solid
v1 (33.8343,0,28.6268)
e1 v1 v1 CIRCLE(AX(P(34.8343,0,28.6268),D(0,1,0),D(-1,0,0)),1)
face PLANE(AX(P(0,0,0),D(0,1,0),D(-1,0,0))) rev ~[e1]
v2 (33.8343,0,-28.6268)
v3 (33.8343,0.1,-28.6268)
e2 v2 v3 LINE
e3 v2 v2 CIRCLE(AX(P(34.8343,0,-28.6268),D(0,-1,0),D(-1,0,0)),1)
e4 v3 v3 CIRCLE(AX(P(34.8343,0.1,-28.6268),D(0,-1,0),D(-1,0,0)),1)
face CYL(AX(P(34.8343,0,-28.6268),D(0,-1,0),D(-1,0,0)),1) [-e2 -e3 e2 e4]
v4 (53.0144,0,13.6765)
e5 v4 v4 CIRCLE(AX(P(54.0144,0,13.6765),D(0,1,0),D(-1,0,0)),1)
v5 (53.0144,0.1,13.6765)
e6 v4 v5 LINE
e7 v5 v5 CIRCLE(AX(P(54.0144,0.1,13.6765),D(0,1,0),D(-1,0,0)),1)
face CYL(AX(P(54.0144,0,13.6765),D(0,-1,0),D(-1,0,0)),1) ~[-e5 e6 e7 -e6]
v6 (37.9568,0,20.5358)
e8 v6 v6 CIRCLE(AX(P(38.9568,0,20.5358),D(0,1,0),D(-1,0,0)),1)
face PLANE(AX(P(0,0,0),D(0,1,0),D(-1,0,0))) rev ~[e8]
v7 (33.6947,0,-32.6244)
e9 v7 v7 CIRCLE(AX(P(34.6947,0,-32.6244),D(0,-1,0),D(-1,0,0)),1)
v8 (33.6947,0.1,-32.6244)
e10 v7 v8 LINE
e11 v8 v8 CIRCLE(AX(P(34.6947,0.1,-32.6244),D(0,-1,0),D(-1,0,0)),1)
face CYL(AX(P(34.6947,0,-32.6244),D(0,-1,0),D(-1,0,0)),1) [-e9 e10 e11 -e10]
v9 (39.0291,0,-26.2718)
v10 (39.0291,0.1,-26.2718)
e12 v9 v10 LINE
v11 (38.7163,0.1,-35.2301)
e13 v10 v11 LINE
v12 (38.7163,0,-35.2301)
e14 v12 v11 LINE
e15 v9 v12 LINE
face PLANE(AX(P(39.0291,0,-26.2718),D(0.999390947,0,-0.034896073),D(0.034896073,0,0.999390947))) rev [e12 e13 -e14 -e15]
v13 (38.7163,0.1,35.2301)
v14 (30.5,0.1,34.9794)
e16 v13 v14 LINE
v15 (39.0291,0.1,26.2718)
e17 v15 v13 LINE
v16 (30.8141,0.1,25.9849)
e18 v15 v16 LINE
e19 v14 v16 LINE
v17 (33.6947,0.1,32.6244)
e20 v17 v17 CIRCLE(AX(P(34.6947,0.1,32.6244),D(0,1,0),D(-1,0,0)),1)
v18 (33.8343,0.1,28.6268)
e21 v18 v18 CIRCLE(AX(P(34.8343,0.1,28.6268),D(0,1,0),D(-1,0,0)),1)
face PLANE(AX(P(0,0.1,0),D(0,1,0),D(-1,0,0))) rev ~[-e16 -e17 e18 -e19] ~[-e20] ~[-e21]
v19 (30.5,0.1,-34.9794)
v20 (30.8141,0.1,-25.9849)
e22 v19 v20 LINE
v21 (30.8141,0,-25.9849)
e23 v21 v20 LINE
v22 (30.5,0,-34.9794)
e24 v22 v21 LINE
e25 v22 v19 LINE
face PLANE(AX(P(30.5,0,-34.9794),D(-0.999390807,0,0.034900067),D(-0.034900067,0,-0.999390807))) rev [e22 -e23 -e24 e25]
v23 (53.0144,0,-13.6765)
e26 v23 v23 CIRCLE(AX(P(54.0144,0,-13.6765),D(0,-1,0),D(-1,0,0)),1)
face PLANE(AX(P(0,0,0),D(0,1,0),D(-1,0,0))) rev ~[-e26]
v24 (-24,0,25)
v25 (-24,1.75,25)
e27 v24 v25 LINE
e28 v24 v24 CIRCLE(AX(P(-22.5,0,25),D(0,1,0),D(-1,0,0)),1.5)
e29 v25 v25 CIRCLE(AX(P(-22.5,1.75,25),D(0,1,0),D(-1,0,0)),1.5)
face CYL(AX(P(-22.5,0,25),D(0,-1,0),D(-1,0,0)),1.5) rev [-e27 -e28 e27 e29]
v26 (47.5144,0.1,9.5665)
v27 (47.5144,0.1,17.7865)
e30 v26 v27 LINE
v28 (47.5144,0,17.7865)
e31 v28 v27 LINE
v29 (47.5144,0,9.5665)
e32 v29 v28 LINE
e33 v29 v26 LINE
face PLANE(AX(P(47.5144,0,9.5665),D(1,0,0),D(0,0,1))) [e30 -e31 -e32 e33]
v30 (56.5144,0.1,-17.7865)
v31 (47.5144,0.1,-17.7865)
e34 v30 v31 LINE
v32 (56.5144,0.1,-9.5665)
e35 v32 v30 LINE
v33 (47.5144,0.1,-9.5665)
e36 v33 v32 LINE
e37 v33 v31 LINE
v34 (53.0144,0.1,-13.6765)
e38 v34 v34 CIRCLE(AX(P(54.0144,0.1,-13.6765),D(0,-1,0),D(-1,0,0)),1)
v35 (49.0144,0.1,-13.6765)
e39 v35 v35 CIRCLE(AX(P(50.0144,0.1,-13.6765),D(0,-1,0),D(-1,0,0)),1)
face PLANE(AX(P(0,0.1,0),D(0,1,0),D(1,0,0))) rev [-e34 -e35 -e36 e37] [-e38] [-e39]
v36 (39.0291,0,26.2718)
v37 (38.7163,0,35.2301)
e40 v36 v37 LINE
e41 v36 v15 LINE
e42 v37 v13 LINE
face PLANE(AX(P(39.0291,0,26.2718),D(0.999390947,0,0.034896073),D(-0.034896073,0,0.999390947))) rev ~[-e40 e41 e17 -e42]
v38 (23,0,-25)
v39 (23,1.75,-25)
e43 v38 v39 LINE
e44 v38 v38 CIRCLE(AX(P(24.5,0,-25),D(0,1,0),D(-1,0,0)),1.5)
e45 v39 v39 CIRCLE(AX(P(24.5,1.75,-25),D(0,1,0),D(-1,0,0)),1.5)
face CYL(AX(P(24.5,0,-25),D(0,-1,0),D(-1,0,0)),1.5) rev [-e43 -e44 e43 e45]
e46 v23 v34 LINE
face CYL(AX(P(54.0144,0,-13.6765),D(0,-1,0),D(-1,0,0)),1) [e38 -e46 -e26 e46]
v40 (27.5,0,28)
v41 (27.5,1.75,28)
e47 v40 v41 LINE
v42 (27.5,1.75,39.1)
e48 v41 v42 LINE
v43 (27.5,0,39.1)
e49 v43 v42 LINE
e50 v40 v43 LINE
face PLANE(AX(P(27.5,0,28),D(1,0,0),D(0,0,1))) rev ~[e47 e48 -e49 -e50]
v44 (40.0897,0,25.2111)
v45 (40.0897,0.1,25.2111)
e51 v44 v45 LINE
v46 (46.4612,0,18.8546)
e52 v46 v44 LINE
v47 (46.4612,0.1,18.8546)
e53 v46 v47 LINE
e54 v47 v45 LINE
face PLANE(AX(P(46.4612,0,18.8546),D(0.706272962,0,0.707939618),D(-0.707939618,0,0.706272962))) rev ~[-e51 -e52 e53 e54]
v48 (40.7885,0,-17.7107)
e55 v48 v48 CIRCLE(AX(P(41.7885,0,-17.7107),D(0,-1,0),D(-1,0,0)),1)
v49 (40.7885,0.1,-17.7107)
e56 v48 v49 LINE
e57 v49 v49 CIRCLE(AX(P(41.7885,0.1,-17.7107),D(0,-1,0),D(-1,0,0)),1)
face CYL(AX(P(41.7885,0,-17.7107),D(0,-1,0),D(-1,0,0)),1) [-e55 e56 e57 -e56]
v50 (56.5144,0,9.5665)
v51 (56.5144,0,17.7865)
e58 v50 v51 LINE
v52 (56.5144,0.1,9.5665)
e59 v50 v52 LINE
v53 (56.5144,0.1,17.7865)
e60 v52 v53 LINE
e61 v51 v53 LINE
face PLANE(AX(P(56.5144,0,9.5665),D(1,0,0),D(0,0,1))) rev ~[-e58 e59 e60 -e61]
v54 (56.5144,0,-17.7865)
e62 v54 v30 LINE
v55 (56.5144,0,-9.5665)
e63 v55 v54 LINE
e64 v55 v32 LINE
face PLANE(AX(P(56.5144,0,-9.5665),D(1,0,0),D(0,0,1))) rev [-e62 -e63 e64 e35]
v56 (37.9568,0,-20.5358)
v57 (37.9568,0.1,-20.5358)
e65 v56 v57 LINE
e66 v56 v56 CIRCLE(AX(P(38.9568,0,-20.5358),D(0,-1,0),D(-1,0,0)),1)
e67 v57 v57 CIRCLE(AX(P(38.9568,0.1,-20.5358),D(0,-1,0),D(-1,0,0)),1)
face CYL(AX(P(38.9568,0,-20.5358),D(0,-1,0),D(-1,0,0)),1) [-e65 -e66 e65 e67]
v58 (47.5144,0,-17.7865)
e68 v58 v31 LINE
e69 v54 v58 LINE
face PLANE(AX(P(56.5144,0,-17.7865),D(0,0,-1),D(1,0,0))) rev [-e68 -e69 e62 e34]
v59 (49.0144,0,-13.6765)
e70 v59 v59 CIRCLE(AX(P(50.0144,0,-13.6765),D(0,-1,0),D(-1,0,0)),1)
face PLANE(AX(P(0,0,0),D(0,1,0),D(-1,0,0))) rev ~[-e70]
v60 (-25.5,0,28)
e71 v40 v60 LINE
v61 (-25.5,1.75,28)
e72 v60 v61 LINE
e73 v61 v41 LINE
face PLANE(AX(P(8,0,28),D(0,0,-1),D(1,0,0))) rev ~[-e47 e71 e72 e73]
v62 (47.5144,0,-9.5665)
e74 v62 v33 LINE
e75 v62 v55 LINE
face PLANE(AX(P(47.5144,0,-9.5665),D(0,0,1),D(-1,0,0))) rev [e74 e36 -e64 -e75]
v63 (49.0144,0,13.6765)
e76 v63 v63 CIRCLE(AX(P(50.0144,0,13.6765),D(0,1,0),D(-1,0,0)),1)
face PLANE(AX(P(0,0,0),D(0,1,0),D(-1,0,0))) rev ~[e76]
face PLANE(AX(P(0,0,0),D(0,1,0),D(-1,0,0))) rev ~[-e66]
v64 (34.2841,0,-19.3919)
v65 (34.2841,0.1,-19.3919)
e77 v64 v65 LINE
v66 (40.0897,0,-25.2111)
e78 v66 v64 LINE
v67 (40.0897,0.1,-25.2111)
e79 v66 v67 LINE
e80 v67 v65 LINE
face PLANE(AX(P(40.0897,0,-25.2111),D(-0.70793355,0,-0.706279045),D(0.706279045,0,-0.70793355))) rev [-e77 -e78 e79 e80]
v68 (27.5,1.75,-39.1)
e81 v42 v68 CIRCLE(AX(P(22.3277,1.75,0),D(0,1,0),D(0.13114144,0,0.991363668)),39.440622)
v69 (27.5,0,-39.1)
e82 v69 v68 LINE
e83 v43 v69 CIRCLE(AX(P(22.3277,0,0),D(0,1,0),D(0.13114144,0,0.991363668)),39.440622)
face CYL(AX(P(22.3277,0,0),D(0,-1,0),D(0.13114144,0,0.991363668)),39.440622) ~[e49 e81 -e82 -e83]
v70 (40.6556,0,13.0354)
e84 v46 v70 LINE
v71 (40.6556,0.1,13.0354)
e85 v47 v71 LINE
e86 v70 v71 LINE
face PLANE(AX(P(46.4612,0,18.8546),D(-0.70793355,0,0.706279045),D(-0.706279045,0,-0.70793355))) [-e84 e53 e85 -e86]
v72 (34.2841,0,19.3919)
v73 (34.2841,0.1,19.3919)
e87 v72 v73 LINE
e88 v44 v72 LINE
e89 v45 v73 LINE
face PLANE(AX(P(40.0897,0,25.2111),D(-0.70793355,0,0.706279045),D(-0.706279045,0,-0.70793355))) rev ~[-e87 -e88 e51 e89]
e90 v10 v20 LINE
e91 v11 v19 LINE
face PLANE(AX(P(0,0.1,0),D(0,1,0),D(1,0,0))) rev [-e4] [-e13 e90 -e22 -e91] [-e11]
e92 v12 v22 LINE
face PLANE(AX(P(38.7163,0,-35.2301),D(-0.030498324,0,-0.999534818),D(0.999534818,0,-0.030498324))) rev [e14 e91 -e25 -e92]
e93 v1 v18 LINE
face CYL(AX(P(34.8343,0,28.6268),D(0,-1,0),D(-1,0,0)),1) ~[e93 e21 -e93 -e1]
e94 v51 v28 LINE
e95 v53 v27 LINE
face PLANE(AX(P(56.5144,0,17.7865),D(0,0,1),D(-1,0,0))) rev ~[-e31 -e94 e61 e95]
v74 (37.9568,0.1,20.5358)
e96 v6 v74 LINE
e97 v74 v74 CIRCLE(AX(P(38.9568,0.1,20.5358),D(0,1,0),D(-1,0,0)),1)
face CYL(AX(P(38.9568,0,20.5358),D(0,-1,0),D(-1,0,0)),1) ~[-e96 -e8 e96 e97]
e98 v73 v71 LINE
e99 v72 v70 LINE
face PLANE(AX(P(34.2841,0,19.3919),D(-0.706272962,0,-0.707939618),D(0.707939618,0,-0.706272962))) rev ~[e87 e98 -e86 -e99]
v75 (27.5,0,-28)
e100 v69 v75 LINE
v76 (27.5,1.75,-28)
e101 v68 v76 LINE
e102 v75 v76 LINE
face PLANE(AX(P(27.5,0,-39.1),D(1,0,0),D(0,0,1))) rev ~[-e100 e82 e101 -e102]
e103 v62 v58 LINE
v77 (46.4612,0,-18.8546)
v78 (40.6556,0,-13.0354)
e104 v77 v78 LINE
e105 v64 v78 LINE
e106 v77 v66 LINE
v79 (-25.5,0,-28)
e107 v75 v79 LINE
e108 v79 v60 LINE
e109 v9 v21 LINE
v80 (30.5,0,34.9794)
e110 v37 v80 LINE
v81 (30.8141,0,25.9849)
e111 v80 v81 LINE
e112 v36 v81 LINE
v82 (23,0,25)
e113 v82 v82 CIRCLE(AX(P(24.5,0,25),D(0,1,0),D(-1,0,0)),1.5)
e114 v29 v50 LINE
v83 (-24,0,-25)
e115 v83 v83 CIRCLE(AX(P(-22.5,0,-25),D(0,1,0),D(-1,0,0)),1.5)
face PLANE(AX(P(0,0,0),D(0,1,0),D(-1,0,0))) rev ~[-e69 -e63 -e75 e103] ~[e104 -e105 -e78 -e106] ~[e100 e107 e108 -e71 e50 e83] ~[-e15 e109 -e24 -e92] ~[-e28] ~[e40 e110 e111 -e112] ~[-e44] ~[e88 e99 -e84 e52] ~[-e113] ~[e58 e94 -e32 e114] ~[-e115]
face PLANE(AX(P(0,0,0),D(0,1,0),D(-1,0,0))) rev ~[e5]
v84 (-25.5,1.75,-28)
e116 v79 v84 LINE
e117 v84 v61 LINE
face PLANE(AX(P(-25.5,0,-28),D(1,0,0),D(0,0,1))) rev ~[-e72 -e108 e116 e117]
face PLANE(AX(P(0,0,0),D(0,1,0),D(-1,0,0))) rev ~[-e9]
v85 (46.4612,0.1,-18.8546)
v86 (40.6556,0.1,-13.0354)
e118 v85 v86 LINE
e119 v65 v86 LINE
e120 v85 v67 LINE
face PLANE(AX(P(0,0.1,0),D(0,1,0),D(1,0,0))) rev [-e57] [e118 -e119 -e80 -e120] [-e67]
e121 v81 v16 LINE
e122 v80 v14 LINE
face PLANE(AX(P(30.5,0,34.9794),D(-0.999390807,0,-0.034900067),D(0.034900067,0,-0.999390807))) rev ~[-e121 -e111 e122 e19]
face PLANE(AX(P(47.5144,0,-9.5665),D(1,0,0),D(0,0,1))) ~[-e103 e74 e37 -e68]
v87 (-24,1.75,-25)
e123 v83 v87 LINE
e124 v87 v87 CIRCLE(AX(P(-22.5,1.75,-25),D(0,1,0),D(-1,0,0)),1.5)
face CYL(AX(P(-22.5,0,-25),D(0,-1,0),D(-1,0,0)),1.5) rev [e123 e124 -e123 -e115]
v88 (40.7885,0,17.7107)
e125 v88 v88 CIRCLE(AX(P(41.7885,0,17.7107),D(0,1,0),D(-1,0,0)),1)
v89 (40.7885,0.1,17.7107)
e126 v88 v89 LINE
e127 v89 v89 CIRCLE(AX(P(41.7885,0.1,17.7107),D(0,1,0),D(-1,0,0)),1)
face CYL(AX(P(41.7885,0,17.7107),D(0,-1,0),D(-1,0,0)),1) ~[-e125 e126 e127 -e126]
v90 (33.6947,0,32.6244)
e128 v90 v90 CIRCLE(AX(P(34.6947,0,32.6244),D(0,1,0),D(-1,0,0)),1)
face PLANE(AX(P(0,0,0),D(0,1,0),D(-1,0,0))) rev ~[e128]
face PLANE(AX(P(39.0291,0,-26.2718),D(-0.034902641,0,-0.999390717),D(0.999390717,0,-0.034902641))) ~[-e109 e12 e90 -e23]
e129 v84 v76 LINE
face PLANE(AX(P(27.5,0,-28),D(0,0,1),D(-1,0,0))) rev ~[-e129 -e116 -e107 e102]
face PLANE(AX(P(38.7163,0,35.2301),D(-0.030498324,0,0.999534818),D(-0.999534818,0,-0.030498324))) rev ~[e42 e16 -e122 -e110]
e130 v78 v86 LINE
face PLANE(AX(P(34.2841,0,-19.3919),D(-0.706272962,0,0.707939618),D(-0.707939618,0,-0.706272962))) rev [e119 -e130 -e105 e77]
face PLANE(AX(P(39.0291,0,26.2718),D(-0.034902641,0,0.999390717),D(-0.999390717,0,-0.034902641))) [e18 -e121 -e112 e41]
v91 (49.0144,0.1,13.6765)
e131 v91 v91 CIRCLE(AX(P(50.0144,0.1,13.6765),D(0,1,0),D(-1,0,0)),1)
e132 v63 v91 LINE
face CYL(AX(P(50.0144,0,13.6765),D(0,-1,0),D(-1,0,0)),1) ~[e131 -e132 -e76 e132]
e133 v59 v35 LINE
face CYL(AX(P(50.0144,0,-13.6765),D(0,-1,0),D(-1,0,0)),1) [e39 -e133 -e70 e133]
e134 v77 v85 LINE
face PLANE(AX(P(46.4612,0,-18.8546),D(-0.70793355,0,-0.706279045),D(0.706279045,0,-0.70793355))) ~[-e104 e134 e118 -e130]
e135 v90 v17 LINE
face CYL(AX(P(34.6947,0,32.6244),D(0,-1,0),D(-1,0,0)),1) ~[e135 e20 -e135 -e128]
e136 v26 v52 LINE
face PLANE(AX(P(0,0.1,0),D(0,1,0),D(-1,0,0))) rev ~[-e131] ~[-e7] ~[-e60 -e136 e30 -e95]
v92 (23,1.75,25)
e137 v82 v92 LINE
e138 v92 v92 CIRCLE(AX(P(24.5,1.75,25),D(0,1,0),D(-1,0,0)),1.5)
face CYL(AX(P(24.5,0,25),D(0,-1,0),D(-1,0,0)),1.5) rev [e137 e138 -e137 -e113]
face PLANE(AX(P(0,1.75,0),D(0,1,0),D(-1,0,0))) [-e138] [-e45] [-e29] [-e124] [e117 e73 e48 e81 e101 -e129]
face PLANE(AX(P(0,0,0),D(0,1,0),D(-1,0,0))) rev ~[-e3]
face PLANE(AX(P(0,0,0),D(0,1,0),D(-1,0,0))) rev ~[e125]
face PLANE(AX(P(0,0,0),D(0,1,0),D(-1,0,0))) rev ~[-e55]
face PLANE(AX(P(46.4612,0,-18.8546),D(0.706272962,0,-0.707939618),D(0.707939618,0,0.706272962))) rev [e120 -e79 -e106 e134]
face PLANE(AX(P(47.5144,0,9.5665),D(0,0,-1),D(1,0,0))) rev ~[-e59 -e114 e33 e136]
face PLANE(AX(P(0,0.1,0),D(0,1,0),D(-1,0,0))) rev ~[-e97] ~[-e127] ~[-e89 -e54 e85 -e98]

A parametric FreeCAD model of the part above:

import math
import FreeCAD as App
import Part
import Sketcher

V = App.Vector
Q = App.Units.Quantity


def add_polygon(sketch, points):
    """Adds a closed chain of lines whose ends are joined by coincident constraints."""
    first, n = sketch.GeometryCount, len(points)
    for a, b in zip(points, points[1:] + points[:1]):
        sketch.addGeometry(Part.LineSegment(App.Vector(*a, 0), App.Vector(*b, 0)), False)
    for i in range(n):
        sketch.addConstraint(Sketcher.Constraint("Coincident", first + i, 2, first + (i + 1) % n, 1))

doc = App.newDocument("Part")
body = doc.addObject("PartDesign::Body", "Body")

# Sketch on XZ plane
sketch1 = doc.addObject("Sketcher::SketchObject", "Sketch")
body.addObject(sketch1)
sketch1.AttachmentSupport = (doc.XZ_Plane, [""])
sketch1.MapMode = "FlatFace"
sketch1.addGeometry([
    Part.LineSegment(V(27.5, -39.1, 0), V(27.5, -28, 0)),  # 0
    Part.LineSegment(V(27.5, -28, 0), V(-25.5, -28, 0)),  # 1
    Part.LineSegment(V(-25.5, -28, 0), V(-25.5, 28, 0)),  # 2
    Part.LineSegment(V(-25.5, 28, 0), V(27.5, 28, 0)),  # 3
    Part.LineSegment(V(27.5, 28, 0), V(27.5, 39.1, 0)),  # 4
    Part.ArcOfCircle(Part.Circle(V(22.3277, 0, 0), V(0, 0, 1), 39.440622), math.radians(-82.464443), math.radians(82.464443)),  # 5
    Part.Circle(V(24.5, -25, 0), V(0, 0, 1), 1.5),  # 6
    Part.Circle(V(-22.5, -25, 0), V(0, 0, 1), 1.5),  # 7
    Part.Circle(V(24.5, 25, 0), V(0, 0, 1), 1.5),  # 8
    Part.Circle(V(-22.5, 25, 0), V(0, 0, 1), 1.5),  # 9
], False)
sketch1.addConstraint([
    Sketcher.Constraint("Coincident", 0, 2, 1, 1),
    Sketcher.Constraint("Coincident", 1, 2, 2, 1),
    Sketcher.Constraint("Coincident", 2, 2, 3, 1),
    Sketcher.Constraint("Coincident", 3, 2, 4, 1),
    Sketcher.Constraint("Coincident", 4, 2, 5, 2),
    Sketcher.Constraint("Coincident", 5, 1, 0, 1),
    Sketcher.Constraint("Vertical", 0),
    Sketcher.Constraint("Horizontal", 1),
    Sketcher.Constraint("Vertical", 2),
    Sketcher.Constraint("Horizontal", 3),
    Sketcher.Constraint("Vertical", 4),
    Sketcher.Constraint("Equal", 6, 7),
    Sketcher.Constraint("Equal", 7, 8),
    Sketcher.Constraint("Equal", 8, 9),
    Sketcher.Constraint("Symmetric", 6, 3, 8, 3, -1),
    Sketcher.Constraint("Symmetric", 7, 3, 9, 3, -1),
    Sketcher.Constraint("Symmetric", 0, 2, 3, 2, -1),
    Sketcher.Constraint("PointOnObject", 5, 3, -1),
    Sketcher.Constraint("Horizontal", 6, 3, 7, 3),
    Sketcher.Constraint("Diameter", 6, Q("3 mm")),
    Sketcher.Constraint("DistanceX", 1, 2, 1, 1, Q("53 mm")),
    Sketcher.Constraint("DistanceX", 6, 3, 0, 2, Q("3 mm")),
    Sketcher.Constraint("DistanceY", 0, 2, 6, 3, Q("3 mm")),
    Sketcher.Constraint("DistanceY", 0, 2, 8, 3, Q("53 mm")),
    Sketcher.Constraint("DistanceX", 1, 2, 7, 3, Q("3 mm")),
    Sketcher.Constraint("Radius", 5, Q("39.4406 mm")),
    Sketcher.Constraint("DistanceY", 0, 1, 0, 2, Q("11.1 mm")),
    Sketcher.Constraint("DistanceX", -1, 1, 6, 3, Q("24.5 mm")),
])
pad1 = doc.addObject("PartDesign::Pad", "Pad")
body.addObject(pad1)
pad1.Profile = sketch1
pad1.Length = 1.75
pad1.Reversed = True

# Sketch on XZ plane
sketch2 = doc.addObject("Sketcher::SketchObject", "Sketch001")
body.addObject(sketch2)
sketch2.AttachmentSupport = (doc.XZ_Plane, [""])
sketch2.MapMode = "FlatFace"
add_polygon(sketch2, [(34.2841, 19.3919), (40.0897, 25.2111), (46.4612, 18.8546), (40.6556, 13.0354)])  # lines 0-3
sketch2.addGeometry(Part.Circle(V(41.7885, 17.7107, 0), V(0, 0, 1), 1), False)  # 4
sketch2.addGeometry(Part.Circle(V(38.9568, 20.5358, 0), V(0, 0, 1), 1), False)  # 5
add_polygon(sketch2, [(38.7163, 35.2301), (39.0291, 26.2718), (30.8141, 25.9849), (30.5, 34.9794)])  # lines 6-9
sketch2.addGeometry(Part.Circle(V(34.8343, 28.6268, 0), V(0, 0, 1), 1), False)  # 10
sketch2.addGeometry(Part.Circle(V(34.6947, 32.6244, 0), V(0, 0, 1), 1), False)  # 11
add_polygon(sketch2, [(56.5144, 9.5665), (47.5144, 9.5665), (47.5144, 17.7865), (56.5144, 17.7865)])  # lines 12-15
sketch2.addGeometry(Part.Circle(V(54.0144, 13.6765, 0), V(0, 0, 1), 1), False)  # 16
sketch2.addGeometry(Part.Circle(V(50.0144, 13.6765, 0), V(0, 0, 1), 1), False)  # 17
sketch2.addConstraint([
    Sketcher.Constraint("Horizontal", 12),
    Sketcher.Constraint("Vertical", 13),
    Sketcher.Constraint("Horizontal", 14),
    Sketcher.Constraint("Vertical", 15),
    Sketcher.Constraint("Diameter", 4, Q("2 mm")),
    Sketcher.Constraint("Diameter", 5, Q("2 mm")),
    Sketcher.Constraint("Diameter", 10, Q("2 mm")),
    Sketcher.Constraint("Diameter", 11, Q("2 mm")),
    Sketcher.Constraint("Diameter", 16, Q("2 mm")),
    Sketcher.Constraint("Diameter", 17, Q("2 mm")),
    Sketcher.Constraint("DistanceX", 12, 2, 12, 1, Q("9 mm")),
    Sketcher.Constraint("Distance", 1, Q("9 mm")),
    Sketcher.Constraint("Distance", 3, Q("9 mm")),
    Sketcher.Constraint("Distance", 8, Q("9 mm")),
    Sketcher.Constraint("DistanceY", 13, 1, 13, 2, Q("8.22 mm")),
    Sketcher.Constraint("DistanceX", 12, 2, 17, 3, Q("2.5 mm")),
    Sketcher.Constraint("DistanceX", 16, 3, 14, 2, Q("2.5 mm")),
    Sketcher.Constraint("Distance", 0, Q("8.22 mm")),
    Sketcher.Constraint("Distance", 2, Q("8.22 mm")),
    Sketcher.Constraint("Distance", 7, Q("8.22 mm")),
    Sketcher.Constraint("DistanceY", 12, 2, 17, 3, Q("4.11 mm")),
    Sketcher.Constraint("DistanceY", 12, 2, 16, 3, Q("4.11 mm")),
    Sketcher.Constraint("Distance", 9, Q("8.2201 mm")),
    Sketcher.Constraint("DistanceX", -1, 1, 8, 2, Q("30.5 mm")),
    Sketcher.Constraint("DistanceY", -1, 1, 9, 2, Q("35.23 mm")),
    Sketcher.Constraint("DistanceX", 10, 3, 16, 3, Q("19.18 mm")),
    Sketcher.Constraint("DistanceY", 3, 2, 6, 2, Q("6.88 mm")),
    Sketcher.Constraint("DistanceX", 7, 2, 3, 2, Q("3.47 mm")),
    Sketcher.Constraint("DistanceY", -1, 1, 0, 2, Q("25.211 mm")),
    Sketcher.Constraint("DistanceX", -1, 1, 3, 2, Q("34.284 mm")),
    Sketcher.Constraint("DistanceY", -1, 1, 3, 2, Q("19.392 mm")),
    Sketcher.Constraint("DistanceX", -1, 1, 6, 2, Q("39.029 mm")),
    Sketcher.Constraint("DistanceY", 4, 3, 5, 3, Q("2.825 mm")),
    Sketcher.Constraint("DistanceY", 5, 3, 10, 3, Q("8.091 mm")),
    Sketcher.Constraint("DistanceX", 11, 3, 5, 3, Q("4.262 mm")),
    Sketcher.Constraint("DistanceX", 4, 3, 16, 3, Q("12.226 mm")),
    Sketcher.Constraint("DistanceY", 16, 3, 11, 3, Q("18.948 mm")),
    Sketcher.Constraint("DistanceX", 5, 3, 0, 2, Q("1.133 mm")),
    Sketcher.Constraint("DistanceY", 4, 3, 1, 2, Q("1.144 mm")),
    Sketcher.Constraint("DistanceY", 17, 3, 1, 2, Q("5.178 mm")),
    Sketcher.Constraint("DistanceX", 2, 2, 4, 3, Q("1.133 mm")),
    Sketcher.Constraint("DistanceX", 0, 2, 2, 2, Q("0.566 mm")),
])
pocket1 = doc.addObject("PartDesign::Pocket", "Pocket")
body.addObject(pocket1)
pocket1.Profile = sketch2
pocket1.Length = 0.1
doc.recompute()

mirrored = doc.addObject("PartDesign::Mirrored", "Mirrored")
body.addObject(mirrored)
mirrored.Originals = [pocket1]
mirrored.MirrorPlane = (doc.XY_Plane, [""])
body.Tip = mirrored

doc.recompute()
